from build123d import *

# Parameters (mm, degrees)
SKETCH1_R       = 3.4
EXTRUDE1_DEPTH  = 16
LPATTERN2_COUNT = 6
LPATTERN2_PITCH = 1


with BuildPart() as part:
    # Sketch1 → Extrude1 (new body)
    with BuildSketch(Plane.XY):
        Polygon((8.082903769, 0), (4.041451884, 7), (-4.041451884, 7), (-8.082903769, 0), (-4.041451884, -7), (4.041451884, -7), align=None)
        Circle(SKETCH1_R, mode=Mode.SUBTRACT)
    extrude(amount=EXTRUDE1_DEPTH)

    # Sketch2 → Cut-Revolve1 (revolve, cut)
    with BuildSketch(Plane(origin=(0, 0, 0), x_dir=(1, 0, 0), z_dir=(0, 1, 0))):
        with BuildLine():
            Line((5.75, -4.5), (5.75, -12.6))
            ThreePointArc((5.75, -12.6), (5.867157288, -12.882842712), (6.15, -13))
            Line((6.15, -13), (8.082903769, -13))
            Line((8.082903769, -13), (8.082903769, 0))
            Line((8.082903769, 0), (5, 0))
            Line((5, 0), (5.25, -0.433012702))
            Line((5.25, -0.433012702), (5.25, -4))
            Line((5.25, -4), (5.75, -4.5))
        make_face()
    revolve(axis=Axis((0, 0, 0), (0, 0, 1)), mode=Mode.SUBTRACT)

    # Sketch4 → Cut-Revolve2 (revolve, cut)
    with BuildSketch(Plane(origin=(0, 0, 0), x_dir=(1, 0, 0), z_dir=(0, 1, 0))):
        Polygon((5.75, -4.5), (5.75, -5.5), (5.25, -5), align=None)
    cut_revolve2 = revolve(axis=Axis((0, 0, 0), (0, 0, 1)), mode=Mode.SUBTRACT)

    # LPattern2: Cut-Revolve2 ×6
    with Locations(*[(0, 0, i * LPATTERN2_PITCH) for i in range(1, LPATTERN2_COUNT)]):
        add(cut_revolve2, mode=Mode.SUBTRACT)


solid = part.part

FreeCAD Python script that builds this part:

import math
import FreeCAD as App
import Part
import Sketcher

V = App.Vector
Q = App.Units.Quantity

doc = App.newDocument("Part")
params = doc.addObject("Spreadsheet::Sheet", "Params")
for row, (alias, value) in enumerate([
    ("sketch1_diameter", "6.8 mm"),
    ("pad1_length", "16 mm"),
    ("sketch2_radius", "0.4 mm"),
    ("sketch2_height", "13 mm"),
    ("sketch2_height2", "8.1 mm"),
    ("sketch2_length", "0.5 mm"),
    ("groove_angle", "360 deg"),
    ("sketch3_height", "1 mm"),
    ("groove2_angle", "360 deg"),
    ("linearpattern_pitch", "1 mm"),
], start=1):
    params.set(f"A{row}", alias)
    params.set(f"B{row}", "=" + value)
    params.setAlias(f"B{row}", alias)

body = doc.addObject("PartDesign::Body", "Body")

sketch1 = body.newObject("Sketcher::SketchObject", "Sketch")
sketch1.AttachmentSupport = (doc.getObject("XY_Plane"), [""])
sketch1.MapMode = "FlatFace"
sketch1.addGeometry([
    Part.LineSegment(V(8.082904, 0, 0), V(4.041452, 7, 0)),
    Part.LineSegment(V(4.041452, 7, 0), V(-4.041452, 7, 0)),
    Part.LineSegment(V(-4.041452, 7, 0), V(-8.082904, 0, 0)),
    Part.LineSegment(V(-8.082904, 0, 0), V(-4.041452, -7, 0)),
    Part.LineSegment(V(-4.041452, -7, 0), V(4.041452, -7, 0)),
    Part.LineSegment(V(4.041452, -7, 0), V(8.082904, 0, 0)),
    Part.Circle(V(0, 0, 0), V(0, 0, 1), 3.4),
], False)
sketch1.addConstraint([
    Sketcher.Constraint("Coincident", 0, 2, 1, 1),
    Sketcher.Constraint("Coincident", 1, 2, 2, 1),
    Sketcher.Constraint("Coincident", 2, 2, 3, 1),
    Sketcher.Constraint("Coincident", 3, 2, 4, 1),
    Sketcher.Constraint("Coincident", 4, 2, 5, 1),
    Sketcher.Constraint("Coincident", 5, 2, 0, 1),
    Sketcher.Constraint("Horizontal", 1),
    Sketcher.Constraint("Horizontal", 4),
    Sketcher.Constraint("Coincident", 6, 3, -1, 1),
    Sketcher.Constraint("Symmetric", 0, 2, 3, 2, -1, 1),
    Sketcher.Constraint("Symmetric", 2, 2, 5, 2, -1, 1),
    Sketcher.Constraint("PointOnObject", 2, 2, -1),
    Sketcher.Constraint("Parallel", 2, 5),
    Sketcher.Constraint("Vertical", 1, 2, 3, 2),
    Sketcher.Constraint("Diameter", 6, Q("6.8 mm")),
    Sketcher.Constraint("Angle", 0, Q("120 deg")),
    Sketcher.Constraint("DistanceY", -1, 1, 0, 2, Q("7 mm")),
    Sketcher.Constraint("DistanceX", 1, 2, 1, 1, Q("8.082904 mm")),
])
sketch1.setExpression("Constraints[14]", "Params.sketch1_diameter")
pad1 = body.newObject("PartDesign::Pad", "Pad")
pad1.Profile = sketch1
pad1.setExpression("Length", "Params.pad1_length")

sketch2 = body.newObject("Sketcher::SketchObject", "Sketch001")
sketch2.AttachmentSupport = (doc.getObject("XZ_Plane"), [""])
sketch2.MapMode = "FlatFace"
sketch2.addGeometry([
    Part.LineSegment(V(5.75, 4.5, 0), V(5.75, 12.6, 0)),
    Part.ArcOfCircle(Part.Circle(V(6.15, 12.6, 0), V(0, 0, 1), 0.4), math.radians(90), math.radians(180)),
    Part.LineSegment(V(6.15, 13, 0), V(8.082904, 13, 0)),
    Part.LineSegment(V(8.082904, 13, 0), V(8.082904, 0, 0)),
    Part.LineSegment(V(8.082904, 0, 0), V(5, 0, 0)),
    Part.LineSegment(V(5, 0, 0), V(5.25, 0.433013, 0)),
    Part.LineSegment(V(5.25, 0.433013, 0), V(5.25, 4, 0)),
    Part.LineSegment(V(5.25, 4, 0), V(5.75, 4.5, 0)),
], False)
sketch2.addConstraint([
    Sketcher.Constraint("Tangent", 0, 2, 1, 2),
    Sketcher.Constraint("Tangent", 1, 1, 2, 1),
    Sketcher.Constraint("Coincident", 2, 2, 3, 1),
    Sketcher.Constraint("Coincident", 3, 2, 4, 1),
    Sketcher.Constraint("Coincident", 4, 2, 5, 1),
    Sketcher.Constraint("Coincident", 5, 2, 6, 1),
    Sketcher.Constraint("Coincident", 6, 2, 7, 1),
    Sketcher.Constraint("Coincident", 7, 2, 0, 1),
    Sketcher.Constraint("Vertical", 0),
    Sketcher.Constraint("Horizontal", 2),
    Sketcher.Constraint("Vertical", 3),
    Sketcher.Constraint("Horizontal", 4),
    Sketcher.Constraint("Vertical", 6),
    Sketcher.Constraint("PointOnObject", 3, 2, -1),
    Sketcher.Constraint("Radius", 1, Q("0.4 mm")),
    Sketcher.Constraint("DistanceY", 3, 2, 3, 1, Q("13 mm")),
    Sketcher.Constraint("Angle", 5, Q("60 deg")),
    Sketcher.Constraint("Angle", 7, Q("45 deg")),
    Sketcher.Constraint("DistanceY", 0, 1, 0, 2, Q("8.1 mm")),
    Sketcher.Constraint("DistanceX", -1, 1, 4, 2, Q("5 mm")),
    Sketcher.Constraint("DistanceY", -1, 1, 6, 2, Q("4 mm")),
    Sketcher.Constraint("Distance", 5, Q("0.5 mm")),
    Sketcher.Constraint("DistanceX", 2, 1, 2, 2, Q("1.932904 mm")),
])
sketch2.setExpression("Constraints[14]", "Params.sketch2_radius")
sketch2.setExpression("Constraints[15]", "Params.sketch2_height")
sketch2.setExpression("Constraints[18]", "Params.sketch2_height2")
sketch2.setExpression("Constraints[21]", "Params.sketch2_length")
groove = body.newObject("PartDesign::Groove", "Groove")
groove.Profile = sketch2
groove.ReferenceAxis = (sketch2, ["V_Axis"])
groove.setExpression("Angle", "Params.groove_angle")

sketch3 = body.newObject("Sketcher::SketchObject", "Sketch002")
sketch3.AttachmentSupport = (doc.getObject("XZ_Plane"), [""])
sketch3.MapMode = "FlatFace"
sketch3.addGeometry([
    Part.LineSegment(V(5.75, 5.5, 0), V(5.75, 4.5, 0)),
    Part.LineSegment(V(5.75, 4.5, 0), V(5.25, 5, 0)),
    Part.LineSegment(V(5.25, 5, 0), V(5.75, 5.5, 0)),
], False)
sketch3.addConstraint([
    Sketcher.Constraint("Coincident", 0, 2, 1, 1),
    Sketcher.Constraint("Coincident", 1, 2, 2, 1),
    Sketcher.Constraint("Coincident", 2, 2, 0, 1),
    Sketcher.Constraint("Vertical", 0),
    Sketcher.Constraint("Perpendicular", 1, 2),
    Sketcher.Constraint("Equal", 1, 2),
    Sketcher.Constraint("DistanceY", 0, 2, 0, 1, Q("1 mm")),
    Sketcher.Constraint("DistanceY", -1, 1, 1, 2, Q("5 mm")),
    Sketcher.Constraint("DistanceX", -1, 1, 0, 2, Q("5.75 mm")),
])
sketch3.setExpression("Constraints[6]", "Params.sketch3_height")
groove2 = body.newObject("PartDesign::Groove", "Groove001")
groove2.Profile = sketch3
groove2.ReferenceAxis = (sketch3, ["V_Axis"])
groove2.setExpression("Angle", "Params.groove2_angle")
doc.recompute()

linearpattern = body.newObject("PartDesign::LinearPattern", "LinearPattern")
linearpattern.Originals = [groove2]
linearpattern.Direction = (doc.getObject("Z_Axis"), [""])
linearpattern.Mode = "offset"
linearpattern.setExpression("Offset", "Params.linearpattern_pitch")
linearpattern.Occurrences = 6
body.Tip = linearpattern

doc.recompute()
